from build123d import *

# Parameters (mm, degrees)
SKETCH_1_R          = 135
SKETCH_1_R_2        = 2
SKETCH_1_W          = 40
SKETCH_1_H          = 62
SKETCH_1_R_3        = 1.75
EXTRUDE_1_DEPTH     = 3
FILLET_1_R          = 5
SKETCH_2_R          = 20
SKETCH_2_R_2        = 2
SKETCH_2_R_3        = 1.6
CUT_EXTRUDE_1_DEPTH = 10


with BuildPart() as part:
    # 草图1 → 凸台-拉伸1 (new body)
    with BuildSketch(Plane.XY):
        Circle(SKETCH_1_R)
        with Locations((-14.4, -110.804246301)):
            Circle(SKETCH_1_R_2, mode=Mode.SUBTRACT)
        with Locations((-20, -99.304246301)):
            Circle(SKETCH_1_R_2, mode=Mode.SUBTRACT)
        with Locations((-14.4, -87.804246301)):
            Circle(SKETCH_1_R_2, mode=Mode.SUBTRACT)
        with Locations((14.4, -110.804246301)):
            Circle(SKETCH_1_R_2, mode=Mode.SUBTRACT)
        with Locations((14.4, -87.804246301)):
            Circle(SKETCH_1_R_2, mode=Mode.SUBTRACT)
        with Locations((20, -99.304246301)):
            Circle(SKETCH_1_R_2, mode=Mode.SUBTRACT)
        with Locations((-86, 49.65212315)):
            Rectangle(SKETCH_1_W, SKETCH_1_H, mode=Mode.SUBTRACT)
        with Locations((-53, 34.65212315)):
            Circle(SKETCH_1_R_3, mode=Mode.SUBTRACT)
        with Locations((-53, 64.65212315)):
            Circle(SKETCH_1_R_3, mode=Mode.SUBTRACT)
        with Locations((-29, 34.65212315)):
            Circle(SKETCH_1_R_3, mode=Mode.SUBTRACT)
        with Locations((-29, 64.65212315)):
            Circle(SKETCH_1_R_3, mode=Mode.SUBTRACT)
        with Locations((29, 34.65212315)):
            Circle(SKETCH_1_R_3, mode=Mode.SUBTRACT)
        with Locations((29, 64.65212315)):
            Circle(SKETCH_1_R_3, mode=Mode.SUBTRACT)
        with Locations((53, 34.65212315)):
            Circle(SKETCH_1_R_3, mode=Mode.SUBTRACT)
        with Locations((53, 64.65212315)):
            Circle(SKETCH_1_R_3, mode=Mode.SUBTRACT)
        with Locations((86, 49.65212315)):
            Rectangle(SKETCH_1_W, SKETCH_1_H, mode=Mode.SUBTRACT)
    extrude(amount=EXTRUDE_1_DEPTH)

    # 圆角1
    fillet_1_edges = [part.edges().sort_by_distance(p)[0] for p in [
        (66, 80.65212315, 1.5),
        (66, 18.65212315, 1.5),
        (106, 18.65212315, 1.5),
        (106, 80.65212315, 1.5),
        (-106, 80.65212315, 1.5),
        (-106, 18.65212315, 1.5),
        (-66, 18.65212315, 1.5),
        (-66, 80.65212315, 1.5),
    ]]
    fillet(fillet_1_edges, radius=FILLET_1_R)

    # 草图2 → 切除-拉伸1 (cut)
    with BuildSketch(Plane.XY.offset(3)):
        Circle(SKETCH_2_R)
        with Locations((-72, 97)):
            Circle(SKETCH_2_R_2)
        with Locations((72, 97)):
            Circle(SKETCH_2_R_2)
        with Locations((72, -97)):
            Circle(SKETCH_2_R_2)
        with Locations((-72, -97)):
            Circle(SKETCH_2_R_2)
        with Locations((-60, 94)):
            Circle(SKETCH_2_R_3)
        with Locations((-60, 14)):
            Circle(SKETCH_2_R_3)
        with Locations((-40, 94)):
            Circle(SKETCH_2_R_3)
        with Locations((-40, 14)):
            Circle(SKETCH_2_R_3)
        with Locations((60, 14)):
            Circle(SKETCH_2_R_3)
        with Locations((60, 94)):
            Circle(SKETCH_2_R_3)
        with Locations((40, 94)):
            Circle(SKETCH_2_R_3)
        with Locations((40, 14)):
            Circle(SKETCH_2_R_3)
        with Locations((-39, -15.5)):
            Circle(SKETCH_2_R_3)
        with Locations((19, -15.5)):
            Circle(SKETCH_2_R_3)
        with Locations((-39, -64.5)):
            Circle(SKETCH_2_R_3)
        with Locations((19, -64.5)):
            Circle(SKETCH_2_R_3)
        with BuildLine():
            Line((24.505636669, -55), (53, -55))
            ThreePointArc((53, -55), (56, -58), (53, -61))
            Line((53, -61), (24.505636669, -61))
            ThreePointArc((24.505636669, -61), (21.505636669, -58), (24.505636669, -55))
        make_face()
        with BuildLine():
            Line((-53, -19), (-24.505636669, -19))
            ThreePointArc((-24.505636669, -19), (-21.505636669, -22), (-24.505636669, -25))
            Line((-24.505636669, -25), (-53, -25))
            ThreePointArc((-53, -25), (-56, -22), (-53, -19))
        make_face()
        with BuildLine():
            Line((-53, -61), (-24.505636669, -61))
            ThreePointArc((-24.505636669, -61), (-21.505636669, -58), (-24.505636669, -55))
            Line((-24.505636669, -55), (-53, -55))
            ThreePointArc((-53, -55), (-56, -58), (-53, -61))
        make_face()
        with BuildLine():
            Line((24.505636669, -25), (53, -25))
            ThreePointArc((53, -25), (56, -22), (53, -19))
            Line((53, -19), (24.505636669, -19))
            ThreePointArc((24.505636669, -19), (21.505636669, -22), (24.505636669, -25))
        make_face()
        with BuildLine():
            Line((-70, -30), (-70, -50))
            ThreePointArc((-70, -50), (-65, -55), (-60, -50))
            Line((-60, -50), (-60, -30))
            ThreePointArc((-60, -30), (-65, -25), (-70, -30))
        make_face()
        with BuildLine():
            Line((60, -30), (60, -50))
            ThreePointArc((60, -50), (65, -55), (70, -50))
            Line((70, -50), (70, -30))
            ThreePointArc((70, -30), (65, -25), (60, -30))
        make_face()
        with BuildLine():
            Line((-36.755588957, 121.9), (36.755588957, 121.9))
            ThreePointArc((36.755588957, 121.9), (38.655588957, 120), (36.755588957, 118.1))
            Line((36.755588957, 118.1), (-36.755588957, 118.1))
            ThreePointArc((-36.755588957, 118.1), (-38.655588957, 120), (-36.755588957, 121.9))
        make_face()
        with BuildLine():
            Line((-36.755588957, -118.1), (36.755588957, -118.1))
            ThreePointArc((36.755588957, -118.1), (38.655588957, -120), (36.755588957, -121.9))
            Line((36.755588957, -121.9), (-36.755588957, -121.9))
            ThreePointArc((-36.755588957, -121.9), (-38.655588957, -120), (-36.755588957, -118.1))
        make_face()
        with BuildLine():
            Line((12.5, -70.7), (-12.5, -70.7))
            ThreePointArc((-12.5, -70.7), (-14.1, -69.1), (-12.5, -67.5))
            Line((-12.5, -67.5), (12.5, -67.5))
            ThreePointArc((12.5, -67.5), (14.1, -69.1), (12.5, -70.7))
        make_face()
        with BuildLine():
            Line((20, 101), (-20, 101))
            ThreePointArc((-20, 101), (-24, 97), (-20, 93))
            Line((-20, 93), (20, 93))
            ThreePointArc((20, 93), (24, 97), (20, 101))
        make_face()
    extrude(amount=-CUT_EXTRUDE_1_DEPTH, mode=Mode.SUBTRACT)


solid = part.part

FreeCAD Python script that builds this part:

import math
import FreeCAD as App
import Part
import Sketcher
from FreeCAD import Vector
Q = App.Units.Quantity


def edges_at(feature, points):
    """Names of the edges that pass closest to the given points."""
    edges = feature.Shape.Edges
    near = lambda p: min(range(len(edges)), key=lambda i: edges[i].distToShape(Part.Vertex(*p))[0])
    return sorted({f"Edge{near(p) + 1}" for p in points})


def add_polygon(sketch, points):
    """Adds a closed chain of lines whose ends are joined by coincident constraints."""
    first, n = sketch.GeometryCount, len(points)
    for a, b in zip(points, points[1:] + points[:1]):
        sketch.addGeometry(Part.LineSegment(App.Vector(*a, 0), App.Vector(*b, 0)), False)
    for i in range(n):
        sketch.addConstraint(Sketcher.Constraint("Coincident", first + i, 2, first + (i + 1) % n, 1))

doc = App.newDocument("Part")
body = doc.addObject("PartDesign::Body", "Body")

# Sketch on XY plane
sketch1 = doc.addObject("Sketcher::SketchObject", "Sketch")
body.addObject(sketch1)
sketch1.AttachmentSupport = (doc.XY_Plane, [""])
sketch1.MapMode = "FlatFace"
sketch1.addGeometry(Part.Circle(Vector(0, 0, 0), Vector(0, 0, 1), 135), False)  # 0
sketch1.addGeometry(Part.Circle(Vector(-14.4, -110.8, 0), Vector(0, 0, 1), 2), False)  # 1
sketch1.addGeometry(Part.Circle(Vector(-20, -99.3, 0), Vector(0, 0, 1), 2), False)  # 2
sketch1.addGeometry(Part.Circle(Vector(-14.4, -87.8, 0), Vector(0, 0, 1), 2), False)  # 3
sketch1.addGeometry(Part.Circle(Vector(14.4, -110.8, 0), Vector(0, 0, 1), 2), False)  # 4
sketch1.addGeometry(Part.Circle(Vector(20, -99.3, 0), Vector(0, 0, 1), 2), False)  # 5
sketch1.addGeometry(Part.Circle(Vector(14.4, -87.8, 0), Vector(0, 0, 1), 2), False)  # 6
add_polygon(sketch1, [(-66, 18.7), (-106, 18.7), (-106, 80.7), (-66, 80.7)])  # lines 7-10
sketch1.addGeometry(Part.Circle(Vector(-53, 34.7, 0), Vector(0, 0, 1), 1.8), False)  # 11
sketch1.addGeometry(Part.Circle(Vector(-29, 34.7, 0), Vector(0, 0, 1), 1.8), False)  # 12
sketch1.addGeometry(Part.Circle(Vector(-53, 64.7, 0), Vector(0, 0, 1), 1.8), False)  # 13
sketch1.addGeometry(Part.Circle(Vector(-29, 64.7, 0), Vector(0, 0, 1), 1.8), False)  # 14
sketch1.addGeometry(Part.Circle(Vector(29, 34.7, 0), Vector(0, 0, 1), 1.8), False)  # 15
sketch1.addGeometry(Part.Circle(Vector(29, 64.7, 0), Vector(0, 0, 1), 1.8), False)  # 16
sketch1.addGeometry(Part.Circle(Vector(53, 34.7, 0), Vector(0, 0, 1), 1.8), False)  # 17
add_polygon(sketch1, [(106, 18.7), (66, 18.7), (66, 80.7), (106, 80.7)])  # lines 18-21
sketch1.addGeometry(Part.Circle(Vector(53, 64.7, 0), Vector(0, 0, 1), 1.8), False)  # 22
sketch1.addConstraint([
    Sketcher.Constraint("Horizontal", 7),
    Sketcher.Constraint("Vertical", 8),
    Sketcher.Constraint("Horizontal", 9),
    Sketcher.Constraint("Vertical", 10),
    Sketcher.Constraint("Horizontal", 18),
    Sketcher.Constraint("Vertical", 19),
    Sketcher.Constraint("Horizontal", 20),
    Sketcher.Constraint("Vertical", 21),
    Sketcher.Constraint("Coincident", 0, 3, -1, 1),
    Sketcher.Constraint("Equal", 1, 2),
    Sketcher.Constraint("Equal", 2, 3),
    Sketcher.Constraint("Equal", 3, 4),
    Sketcher.Constraint("Equal", 4, 5),
    Sketcher.Constraint("Equal", 5, 6),
    Sketcher.Constraint("Equal", 11, 12),
    Sketcher.Constraint("Equal", 12, 13),
    Sketcher.Constraint("Equal", 13, 14),
    Sketcher.Constraint("Equal", 14, 15),
    Sketcher.Constraint("Equal", 15, 16),
    Sketcher.Constraint("Equal", 16, 17),
    Sketcher.Constraint("Equal", 17, 22),
    Sketcher.Constraint("Symmetric", 1, 3, 4, 3, -2),
    Sketcher.Constraint("Symmetric", 2, 3, 5, 3, -2),
    Sketcher.Constraint("Symmetric", 3, 3, 6, 3, -2),
    Sketcher.Constraint("Symmetric", 12, 3, 15, 3, -2),
    Sketcher.Constraint("Symmetric", 14, 3, 16, 3, -2),
    Sketcher.Constraint("Symmetric", 11, 3, 17, 3, -2),
    Sketcher.Constraint("Symmetric", 13, 3, 22, 3, -2),
    Sketcher.Constraint("Symmetric", 10, 2, 18, 2, -2),
    Sketcher.Constraint("Symmetric", 8, 2, 20, 2, -2),
    Sketcher.Constraint("Horizontal", 11, 3, 12, 3),
    Sketcher.Constraint("Horizontal", 13, 3, 14, 3),
    Sketcher.Constraint("Vertical", 1, 3, 3, 3),
    Sketcher.Constraint("Vertical", 11, 3, 13, 3),
    Sketcher.Constraint("Vertical", 12, 3, 14, 3),
    Sketcher.Constraint("Diameter", 0, Q("270 mm")),
    Sketcher.Constraint("Diameter", 1, Q("4 mm")),
    Sketcher.Constraint("Diameter", 11, Q("3.5 mm")),
    Sketcher.Constraint("DistanceX", 7, 2, 7, 1, Q("40 mm")),
    Sketcher.Constraint("DistanceY", 8, 1, 8, 2, Q("62 mm")),
    Sketcher.Constraint("DistanceX", 2, 3, -1, 1, Q("20 mm")),
    Sketcher.Constraint("DistanceX", 11, 3, -1, 1, Q("53 mm")),
    Sketcher.Constraint("DistanceX", 12, 3, -1, 1, Q("29 mm")),
    Sketcher.Constraint("DistanceX", 7, 2, -1, 1, Q("106 mm")),
    Sketcher.Constraint("DistanceY", 1, 3, 3, 3, Q("23 mm")),
    Sketcher.Constraint("DistanceY", 11, 3, 13, 3, Q("30 mm")),
    Sketcher.Constraint("DistanceY", 7, 2, 11, 3, Q("16 mm")),
    Sketcher.Constraint("DistanceX", 1, 3, -1, 1, Q("14.4 mm")),
    Sketcher.Constraint("DistanceY", 1, 3, 2, 3, Q("11.5 mm")),
    Sketcher.Constraint("DistanceY", 3, 3, 11, 3, Q("122.456369 mm")),
    Sketcher.Constraint("DistanceY", 1, 3, -1, 1, Q("110.804246 mm")),
])
pad1 = doc.addObject("PartDesign::Pad", "Pad")
body.addObject(pad1)
pad1.Profile = sketch1
pad1.Length = 3
doc.recompute()

fillet = doc.addObject("PartDesign::Fillet", "Fillet")
body.addObject(fillet)
fillet.Base = (pad1, edges_at(pad1, [
    (66, 80.652, 1.5),
    (66, 18.652, 1.5),
    (106, 18.652, 1.5),
    (106, 80.652, 1.5),
    (-106, 80.652, 1.5),
    (-106, 18.652, 1.5),
    (-66, 18.652, 1.5),
    (-66, 80.652, 1.5),
]))
fillet.Radius = 5

# Sketch on XY plane
sketch2 = doc.addObject("Sketcher::SketchObject", "Sketch001")
body.addObject(sketch2)
sketch2.AttachmentSupport = (doc.XY_Plane, [""])
sketch2.MapMode = "FlatFace"
sketch2.AttachmentOffset = App.Placement(Vector(0, 0, 3), App.Rotation())
sketch2.addGeometry([
    Part.Circle(Vector(0, 0, 0), Vector(0, 0, 1), 20),  # 0
    Part.Circle(Vector(-72, 97, 0), Vector(0, 0, 1), 2),  # 1
    Part.Circle(Vector(72, 97, 0), Vector(0, 0, 1), 2),  # 2
    Part.Circle(Vector(72, -97, 0), Vector(0, 0, 1), 2),  # 3
    Part.Circle(Vector(-72, -97, 0), Vector(0, 0, 1), 2),  # 4
    Part.Circle(Vector(-60, 94, 0), Vector(0, 0, 1), 1.6),  # 5
    Part.Circle(Vector(-60, 14, 0), Vector(0, 0, 1), 1.6),  # 6
    Part.Circle(Vector(-40, 94, 0), Vector(0, 0, 1), 1.6),  # 7
    Part.Circle(Vector(-40, 14, 0), Vector(0, 0, 1), 1.6),  # 8
    Part.Circle(Vector(60, 14, 0), Vector(0, 0, 1), 1.6),  # 9
    Part.Circle(Vector(60, 94, 0), Vector(0, 0, 1), 1.6),  # 10
    Part.Circle(Vector(40, 94, 0), Vector(0, 0, 1), 1.6),  # 11
    Part.Circle(Vector(40, 14, 0), Vector(0, 0, 1), 1.6),  # 12
    Part.Circle(Vector(-39, -15.5, 0), Vector(0, 0, 1), 1.6),  # 13
    Part.Circle(Vector(19, -15.5, 0), Vector(0, 0, 1), 1.6),  # 14
    Part.Circle(Vector(-39, -64.5, 0), Vector(0, 0, 1), 1.6),  # 15
    Part.Circle(Vector(19, -64.5, 0), Vector(0, 0, 1), 1.6),  # 16
    Part.LineSegment(Vector(53, -55, 0), Vector(24.5, -55, 0)),  # 17
    Part.ArcOfCircle(Part.Circle(Vector(24.5, -58, 0), Vector(0, 0, 1), 3), math.radians(90), math.radians(270)),  # 18
    Part.LineSegment(Vector(24.5, -61, 0), Vector(53, -61, 0)),  # 19
    Part.ArcOfCircle(Part.Circle(Vector(53, -58, 0), Vector(0, 0, 1), 3), math.radians(-90), math.radians(90)),  # 20
    Part.LineSegment(Vector(-24.5, -19, 0), Vector(-53, -19, 0)),  # 21
    Part.ArcOfCircle(Part.Circle(Vector(-53, -22, 0), Vector(0, 0, 1), 3), math.radians(90), math.radians(270)),  # 22
    Part.LineSegment(Vector(-53, -25, 0), Vector(-24.5, -25, 0)),  # 23
    Part.ArcOfCircle(Part.Circle(Vector(-24.5, -22, 0), Vector(0, 0, 1), 3), math.radians(-90), math.radians(90)),  # 24
    Part.LineSegment(Vector(-53, -61, 0), Vector(-24.5, -61, 0)),  # 25
    Part.ArcOfCircle(Part.Circle(Vector(-24.5, -58, 0), Vector(0, 0, 1), 3), math.radians(-90), math.radians(90)),  # 26
    Part.LineSegment(Vector(-24.5, -55, 0), Vector(-53, -55, 0)),  # 27
    Part.ArcOfCircle(Part.Circle(Vector(-53, -58, 0), Vector(0, 0, 1), 3), math.radians(90), math.radians(270)),  # 28
    Part.LineSegment(Vector(24.5, -25, 0), Vector(53, -25, 0)),  # 29
    Part.ArcOfCircle(Part.Circle(Vector(53, -22, 0), Vector(0, 0, 1), 3), math.radians(-90), math.radians(90)),  # 30
    Part.LineSegment(Vector(53, -19, 0), Vector(24.5, -19, 0)),  # 31
    Part.ArcOfCircle(Part.Circle(Vector(24.5, -22, 0), Vector(0, 0, 1), 3), math.radians(90), math.radians(270)),  # 32
    Part.LineSegment(Vector(-70, -30, 0), Vector(-70, -50, 0)),  # 33
    Part.ArcOfCircle(Part.Circle(Vector(-65, -50, 0), Vector(0, 0, 1), 5), math.radians(180), math.radians(360)),  # 34
    Part.LineSegment(Vector(-60, -50, 0), Vector(-60, -30, 0)),  # 35
    Part.ArcOfCircle(Part.Circle(Vector(-65, -30, 0), Vector(0, 0, 1), 5), math.radians(0), math.radians(180)),  # 36
    Part.LineSegment(Vector(60, -30, 0), Vector(60, -50, 0)),  # 37
    Part.ArcOfCircle(Part.Circle(Vector(65, -50, 0), Vector(0, 0, 1), 5), math.radians(180), math.radians(360)),  # 38
    Part.LineSegment(Vector(70, -50, 0), Vector(70, -30, 0)),  # 39
    Part.ArcOfCircle(Part.Circle(Vector(65, -30, 0), Vector(0, 0, 1), 5), math.radians(0), math.radians(180)),  # 40
    Part.LineSegment(Vector(36.8, 121.9, 0), Vector(-36.8, 121.9, 0)),  # 41
    Part.ArcOfCircle(Part.Circle(Vector(-36.8, 120, 0), Vector(0, 0, 1), 1.9), math.radians(90), math.radians(270)),  # 42
    Part.LineSegment(Vector(-36.8, 118.1, 0), Vector(36.8, 118.1, 0)),  # 43
    Part.ArcOfCircle(Part.Circle(Vector(36.8, 120, 0), Vector(0, 0, 1), 1.9), math.radians(-90), math.radians(90)),  # 44
    Part.LineSegment(Vector(36.8, -118.1, 0), Vector(-36.8, -118.1, 0)),  # 45
    Part.ArcOfCircle(Part.Circle(Vector(-36.8, -120, 0), Vector(0, 0, 1), 1.9), math.radians(90), math.radians(270)),  # 46
    Part.LineSegment(Vector(-36.8, -121.9, 0), Vector(36.8, -121.9, 0)),  # 47
    Part.ArcOfCircle(Part.Circle(Vector(36.8, -120, 0), Vector(0, 0, 1), 1.9), math.radians(-90), math.radians(90)),  # 48
    Part.LineSegment(Vector(-12.5, -70.7, 0), Vector(12.5, -70.7, 0)),  # 49
    Part.ArcOfCircle(Part.Circle(Vector(12.5, -69.1, 0), Vector(0, 0, 1), 1.6), math.radians(-90), math.radians(90)),  # 50
    Part.LineSegment(Vector(12.5, -67.5, 0), Vector(-12.5, -67.5, 0)),  # 51
    Part.ArcOfCircle(Part.Circle(Vector(-12.5, -69.1, 0), Vector(0, 0, 1), 1.6), math.radians(90), math.radians(270)),  # 52
    Part.LineSegment(Vector(20, 101, 0), Vector(-20, 101, 0)),  # 53
    Part.ArcOfCircle(Part.Circle(Vector(-20, 97, 0), Vector(0, 0, 1), 4), math.radians(90), math.radians(270)),  # 54
    Part.LineSegment(Vector(-20, 93, 0), Vector(20, 93, 0)),  # 55
    Part.ArcOfCircle(Part.Circle(Vector(20, 97, 0), Vector(0, 0, 1), 4), math.radians(-90), math.radians(90)),  # 56
], False)
sketch2.addConstraint([
    Sketcher.Constraint("Tangent", 17, 2, 18, 1),
    Sketcher.Constraint("Tangent", 18, 2, 19, 1),
    Sketcher.Constraint("Tangent", 19, 2, 20, 1),
    Sketcher.Constraint("Tangent", 20, 2, 17, 1),
    Sketcher.Constraint("Tangent", 21, 2, 22, 1),
    Sketcher.Constraint("Tangent", 22, 2, 23, 1),
    Sketcher.Constraint("Tangent", 23, 2, 24, 1),
    Sketcher.Constraint("Tangent", 24, 2, 21, 1),
    Sketcher.Constraint("Tangent", 25, 2, 26, 1),
    Sketcher.Constraint("Tangent", 26, 2, 27, 1),
    Sketcher.Constraint("Tangent", 27, 2, 28, 1),
    Sketcher.Constraint("Tangent", 28, 2, 25, 1),
    Sketcher.Constraint("Tangent", 29, 2, 30, 1),
    Sketcher.Constraint("Tangent", 30, 2, 31, 1),
    Sketcher.Constraint("Tangent", 31, 2, 32, 1),
    Sketcher.Constraint("Tangent", 32, 2, 29, 1),
    Sketcher.Constraint("Tangent", 33, 2, 34, 1),
    Sketcher.Constraint("Tangent", 34, 2, 35, 1),
    Sketcher.Constraint("Tangent", 35, 2, 36, 1),
    Sketcher.Constraint("Tangent", 36, 2, 33, 1),
    Sketcher.Constraint("Tangent", 37, 2, 38, 1),
    Sketcher.Constraint("Tangent", 38, 2, 39, 1),
    Sketcher.Constraint("Tangent", 39, 2, 40, 1),
    Sketcher.Constraint("Tangent", 40, 2, 37, 1),
    Sketcher.Constraint("Tangent", 41, 2, 42, 1),
    Sketcher.Constraint("Tangent", 42, 2, 43, 1),
    Sketcher.Constraint("Tangent", 43, 2, 44, 1),
    Sketcher.Constraint("Tangent", 44, 2, 41, 1),
    Sketcher.Constraint("Tangent", 45, 2, 46, 1),
    Sketcher.Constraint("Tangent", 46, 2, 47, 1),
    Sketcher.Constraint("Tangent", 47, 2, 48, 1),
    Sketcher.Constraint("Tangent", 48, 2, 45, 1),
    Sketcher.Constraint("Tangent", 49, 2, 50, 1),
    Sketcher.Constraint("Tangent", 50, 2, 51, 1),
    Sketcher.Constraint("Tangent", 51, 2, 52, 1),
    Sketcher.Constraint("Tangent", 52, 2, 49, 1),
    Sketcher.Constraint("Tangent", 53, 2, 54, 1),
    Sketcher.Constraint("Tangent", 54, 2, 55, 1),
    Sketcher.Constraint("Tangent", 55, 2, 56, 1),
    Sketcher.Constraint("Tangent", 56, 2, 53, 1),
    Sketcher.Constraint("Horizontal", 17),
    Sketcher.Constraint("Horizontal", 19),
    Sketcher.Constraint("Horizontal", 21),
    Sketcher.Constraint("Horizontal", 23),
    Sketcher.Constraint("Horizontal", 25),
    Sketcher.Constraint("Horizontal", 27),
    Sketcher.Constraint("Horizontal", 29),
    Sketcher.Constraint("Horizontal", 31),
    Sketcher.Constraint("Vertical", 33),
    Sketcher.Constraint("Vertical", 35),
    Sketcher.Constraint("Vertical", 37),
    Sketcher.Constraint("Vertical", 39),
    Sketcher.Constraint("Horizontal", 41),
    Sketcher.Constraint("Horizontal", 43),
    Sketcher.Constraint("Horizontal", 45),
    Sketcher.Constraint("Horizontal", 47),
    Sketcher.Constraint("Horizontal", 49),
    Sketcher.Constraint("Horizontal", 51),
    Sketcher.Constraint("Horizontal", 53),
    Sketcher.Constraint("Horizontal", 55),
    Sketcher.Constraint("Coincident", 0, 3, -1, 1),
    Sketcher.Constraint("Equal", 1, 2),
    Sketcher.Constraint("Equal", 2, 3),
    Sketcher.Constraint("Equal", 3, 4),
    Sketcher.Constraint("Equal", 5, 6),
    Sketcher.Constraint("Equal", 6, 7),
    Sketcher.Constraint("Equal", 7, 8),
    Sketcher.Constraint("Equal", 8, 9),
    Sketcher.Constraint("Equal", 9, 10),
    Sketcher.Constraint("Equal", 10, 11),
    Sketcher.Constraint("Equal", 11, 12),
    Sketcher.Constraint("Equal", 12, 13),
    Sketcher.Constraint("Equal", 13, 14),
    Sketcher.Constraint("Equal", 14, 15),
    Sketcher.Constraint("Equal", 15, 16),
    Sketcher.Constraint("Equal", 20, 22),
    Sketcher.Constraint("Equal", 24, 26),
    Sketcher.Constraint("Equal", 28, 30),
    Sketcher.Constraint("Equal", 36, 38),
    Sketcher.Constraint("Equal", 44, 46),
    Sketcher.Constraint("Equal", 16, 50),
    Sketcher.Constraint("Symmetric", 1, 3, 3, 3, -1, 1),
    Sketcher.Constraint("Symmetric", 2, 3, 4, 3, -1, 1),
    Sketcher.Constraint("Symmetric", 44, 3, 46, 3, -1, 1),
    Sketcher.Constraint("Symmetric", 1, 3, 2, 3, -2),
    Sketcher.Constraint("Symmetric", 6, 3, 9, 3, -2),
    Sketcher.Constraint("Symmetric", 5, 3, 10, 3, -2),
    Sketcher.Constraint("Symmetric", 7, 3, 11, 3, -2),
    Sketcher.Constraint("Symmetric", 8, 3, 12, 3, -2),
    Sketcher.Constraint("Symmetric", 18, 3, 26, 3, -2),
    Sketcher.Constraint("Symmetric", 22, 3, 30, 3, -2),
    Sketcher.Constraint("Symmetric", 34, 3, 38, 3, -2),
    Sketcher.Constraint("Horizontal", 5, 3, 7, 3),
    Sketcher.Constraint("Horizontal", 6, 3, 8, 3),
    Sketcher.Constraint("Horizontal", 13, 3, 14, 3),
    Sketcher.Constraint("Horizontal", 15, 3, 16, 3),
    Sketcher.Constraint("Horizontal", 36, 3, 40, 3),
    Sketcher.Constraint("Horizontal", 2, 3, 54, 3),
    Sketcher.Constraint("Vertical", 5, 3, 6, 3),
    Sketcher.Constraint("Vertical", 7, 3, 8, 3),
    Sketcher.Constraint("Vertical", 13, 3, 15, 3),
    Sketcher.Constraint("Vertical", 14, 3, 16, 3),
    Sketcher.Constraint("Vertical", 24, 3, 26, 3),
    Sketcher.Constraint("Vertical", 22, 3, 28, 3),
    Sketcher.Constraint("Vertical", 20, 3, 30, 3),
    Sketcher.Constraint("Vertical", 18, 3, 32, 3),
    Sketcher.Constraint("Vertical", 42, 3, 46, 3),
    Sketcher.Constraint("Vertical", 44, 3, 48, 3),
    Sketcher.Constraint("Vertical", 6, 3, 34, 2),
    Sketcher.Constraint("Diameter", 0, Q("40 mm")),
    Sketcher.Constraint("Diameter", 1, Q("4 mm")),
    Sketcher.Constraint("Radius", 18, Q("3 mm")),
    Sketcher.Constraint("Radius", 34, Q("5 mm")),
    Sketcher.Constraint("Radius", 54, Q("4 mm")),
    Sketcher.Constraint("Diameter", 5, Q("3.2 mm")),
    Sketcher.Constraint("Radius", 42, Q("1.9 mm")),
    Sketcher.Constraint("DistanceX", 49, 1, 49, 2, Q("25 mm")),
    Sketcher.Constraint("DistanceX", 53, 2, 53, 1, Q("40 mm")),
    Sketcher.Constraint("DistanceY", 33, 2, 33, 1, Q("20 mm")),
    Sketcher.Constraint("DistanceX", 1, 3, -1, 1, Q("72 mm")),
    Sketcher.Constraint("DistanceY", -1, 1, 1, 3, Q("97 mm")),
    Sketcher.Constraint("DistanceX", 5, 3, -1, 1, Q("60 mm")),
    Sketcher.Constraint("DistanceY", -1, 1, 5, 3, Q("94 mm")),
    Sketcher.Constraint("DistanceY", -1, 1, 6, 3, Q("14 mm")),
    Sketcher.Constraint("DistanceX", 7, 3, -1, 1, Q("40 mm")),
    Sketcher.Constraint("DistanceX", 13, 3, -1, 1, Q("39 mm")),
    Sketcher.Constraint("DistanceX", -1, 1, 14, 3, Q("19 mm")),
    Sketcher.Constraint("DistanceY", 18, 3, -1, 1, Q("58 mm")),
    Sketcher.Constraint("DistanceX", -1, 1, 20, 3, Q("53 mm")),
    Sketcher.Constraint("DistanceY", 22, 3, -1, 1, Q("22 mm")),
    Sketcher.Constraint("DistanceY", 34, 3, -1, 1, Q("50 mm")),
    Sketcher.Constraint("DistanceY", -1, 1, 42, 3, Q("120 mm")),
    Sketcher.Constraint("DistanceX", 54, 3, -1, 1, Q("20 mm")),
    Sketcher.Constraint("DistanceY", 13, 3, -1, 1, Q("15.5 mm")),
    Sketcher.Constraint("DistanceY", 15, 3, -1, 1, Q("64.5 mm")),
    Sketcher.Constraint("DistanceX", -1, 1, 50, 3, Q("12.5 mm")),
    Sketcher.Constraint("DistanceY", 50, 3, -1, 1, Q("69.1 mm")),
    Sketcher.Constraint("DistanceX", 17, 2, 17, 1, Q("28.494363 mm")),
    Sketcher.Constraint("DistanceX", 41, 2, 41, 1, Q("73.511178 mm")),
])
pocket1 = doc.addObject("PartDesign::Pocket", "Pocket")
body.addObject(pocket1)
pocket1.Profile = sketch2
pocket1.Length = 10

doc.recompute()
